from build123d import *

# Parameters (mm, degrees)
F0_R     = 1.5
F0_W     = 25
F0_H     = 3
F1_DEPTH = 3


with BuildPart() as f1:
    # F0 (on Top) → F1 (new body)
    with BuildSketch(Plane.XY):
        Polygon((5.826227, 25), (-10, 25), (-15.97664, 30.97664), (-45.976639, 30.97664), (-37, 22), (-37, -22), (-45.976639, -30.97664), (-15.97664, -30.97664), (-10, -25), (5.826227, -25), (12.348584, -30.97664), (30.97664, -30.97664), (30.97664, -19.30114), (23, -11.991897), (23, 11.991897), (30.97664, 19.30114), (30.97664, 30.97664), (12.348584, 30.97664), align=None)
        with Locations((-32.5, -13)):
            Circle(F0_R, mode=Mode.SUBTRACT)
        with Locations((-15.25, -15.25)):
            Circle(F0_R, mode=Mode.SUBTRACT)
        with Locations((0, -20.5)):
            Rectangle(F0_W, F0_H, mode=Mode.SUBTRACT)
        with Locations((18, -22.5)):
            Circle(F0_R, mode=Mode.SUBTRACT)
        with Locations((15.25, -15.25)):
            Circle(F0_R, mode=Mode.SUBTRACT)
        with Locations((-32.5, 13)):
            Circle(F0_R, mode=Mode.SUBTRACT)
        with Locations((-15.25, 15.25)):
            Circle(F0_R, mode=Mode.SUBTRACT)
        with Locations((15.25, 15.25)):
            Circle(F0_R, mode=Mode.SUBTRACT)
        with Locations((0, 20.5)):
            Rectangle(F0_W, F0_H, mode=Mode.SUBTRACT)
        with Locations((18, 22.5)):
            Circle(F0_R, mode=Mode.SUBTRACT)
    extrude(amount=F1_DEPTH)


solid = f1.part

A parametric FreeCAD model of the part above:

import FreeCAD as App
import Part
import Sketcher
from FreeCAD import Vector
Q = App.Units.Quantity

doc = App.newDocument("Part")
params = doc.addObject("Spreadsheet::Sheet", "Params")
for row, (alias, value) in enumerate([
    ("sketch1_diameter", "3 mm"),
    ("sketch1_width", "29.999999 mm"),
    ("sketch1_width2", "25 mm"),
    ("sketch1_height", "44 mm"),
    ("sketch1_height2", "3 mm"),
    ("pad1_length", "3 mm"),
], start=1):
    params.set(f"A{row}", alias)
    params.set(f"B{row}", "=" + value)
    params.setAlias(f"B{row}", alias)

body = doc.addObject("PartDesign::Body", "Body")

sketch1 = doc.addObject("Sketcher::SketchObject", "Sketch")
body.addObject(sketch1)
sketch1.AttachmentSupport = (doc.XY_Plane, [""])
sketch1.MapMode = "FlatFace"
sketch1.addGeometry(Part.LineSegment(Vector(5.8, 25, 0), Vector(-10, 25, 0)), False)
sketch1.addGeometry(Part.LineSegment(Vector(-10, 25, 0), Vector(-16, 31, 0)), False)
sketch1.addGeometry(Part.LineSegment(Vector(-16, 31, 0), Vector(-46, 31, 0)), False)
sketch1.addGeometry(Part.LineSegment(Vector(-46, 31, 0), Vector(-37, 22, 0)), False)
sketch1.addGeometry(Part.LineSegment(Vector(-37, 22, 0), Vector(-37, -22, 0)), False)
sketch1.addGeometry(Part.LineSegment(Vector(-37, -22, 0), Vector(-46, -31, 0)), False)
sketch1.addGeometry(Part.LineSegment(Vector(-46, -31, 0), Vector(-16, -31, 0)), False)
sketch1.addGeometry(Part.LineSegment(Vector(-16, -31, 0), Vector(-10, -25, 0)), False)
sketch1.addGeometry(Part.LineSegment(Vector(-10, -25, 0), Vector(5.8, -25, 0)), False)
sketch1.addGeometry(Part.LineSegment(Vector(5.8, -25, 0), Vector(12.3, -31, 0)), False)
sketch1.addGeometry(Part.LineSegment(Vector(12.3, -31, 0), Vector(31, -31, 0)), False)
sketch1.addGeometry(Part.LineSegment(Vector(31, -31, 0), Vector(31, -19.3, 0)), False)
sketch1.addGeometry(Part.LineSegment(Vector(31, -19.3, 0), Vector(23, -12, 0)), False)
sketch1.addGeometry(Part.LineSegment(Vector(23, -12, 0), Vector(23, 12, 0)), False)
sketch1.addGeometry(Part.LineSegment(Vector(23, 12, 0), Vector(31, 19.3, 0)), False)
sketch1.addGeometry(Part.LineSegment(Vector(31, 19.3, 0), Vector(31, 31, 0)), False)
sketch1.addGeometry(Part.LineSegment(Vector(31, 31, 0), Vector(12.3, 31, 0)), False)
sketch1.addGeometry(Part.LineSegment(Vector(12.3, 31, 0), Vector(5.8, 25, 0)), False)
sketch1.addGeometry(Part.Circle(Vector(-32.5, -13, 0), Vector(0, 0, 1), 1.5), False)
sketch1.addGeometry(Part.Circle(Vector(-15.2, -15.2, 0), Vector(0, 0, 1), 1.5), False)
sketch1.addGeometry(Part.LineSegment(Vector(12.5, -22, 0), Vector(-12.5, -22, 0)), False)
sketch1.addGeometry(Part.LineSegment(Vector(-12.5, -22, 0), Vector(-12.5, -19, 0)), False)
sketch1.addGeometry(Part.LineSegment(Vector(-12.5, -19, 0), Vector(12.5, -19, 0)), False)
sketch1.addGeometry(Part.LineSegment(Vector(12.5, -19, 0), Vector(12.5, -22, 0)), False)
sketch1.addGeometry(Part.Circle(Vector(18, -22.5, 0), Vector(0, 0, 1), 1.5), False)
sketch1.addGeometry(Part.Circle(Vector(15.2, -15.2, 0), Vector(0, 0, 1), 1.5), False)
sketch1.addGeometry(Part.Circle(Vector(-32.5, 13, 0), Vector(0, 0, 1), 1.5), False)
sketch1.addGeometry(Part.Circle(Vector(-15.2, 15.2, 0), Vector(0, 0, 1), 1.5), False)
sketch1.addGeometry(Part.LineSegment(Vector(12.5, 19, 0), Vector(-12.5, 19, 0)), False)
sketch1.addGeometry(Part.LineSegment(Vector(-12.5, 19, 0), Vector(-12.5, 22, 0)), False)
sketch1.addGeometry(Part.LineSegment(Vector(-12.5, 22, 0), Vector(12.5, 22, 0)), False)
sketch1.addGeometry(Part.LineSegment(Vector(12.5, 22, 0), Vector(12.5, 19, 0)), False)
sketch1.addGeometry(Part.Circle(Vector(15.2, 15.2, 0), Vector(0, 0, 1), 1.5), False)
sketch1.addGeometry(Part.Circle(Vector(18, 22.5, 0), Vector(0, 0, 1), 1.5), False)
sketch1.addConstraint(Sketcher.Constraint("Coincident", 0, 2, 1, 1))
sketch1.addConstraint(Sketcher.Constraint("Coincident", 1, 2, 2, 1))
sketch1.addConstraint(Sketcher.Constraint("Coincident", 2, 2, 3, 1))
sketch1.addConstraint(Sketcher.Constraint("Coincident", 3, 2, 4, 1))
sketch1.addConstraint(Sketcher.Constraint("Coincident", 4, 2, 5, 1))
sketch1.addConstraint(Sketcher.Constraint("Coincident", 5, 2, 6, 1))
sketch1.addConstraint(Sketcher.Constraint("Coincident", 6, 2, 7, 1))
sketch1.addConstraint(Sketcher.Constraint("Coincident", 7, 2, 8, 1))
sketch1.addConstraint(Sketcher.Constraint("Coincident", 8, 2, 9, 1))
sketch1.addConstraint(Sketcher.Constraint("Coincident", 9, 2, 10, 1))
sketch1.addConstraint(Sketcher.Constraint("Coincident", 10, 2, 11, 1))
sketch1.addConstraint(Sketcher.Constraint("Coincident", 11, 2, 12, 1))
sketch1.addConstraint(Sketcher.Constraint("Coincident", 12, 2, 13, 1))
sketch1.addConstraint(Sketcher.Constraint("Coincident", 13, 2, 14, 1))
sketch1.addConstraint(Sketcher.Constraint("Coincident", 14, 2, 15, 1))
sketch1.addConstraint(Sketcher.Constraint("Coincident", 15, 2, 16, 1))
sketch1.addConstraint(Sketcher.Constraint("Coincident", 16, 2, 17, 1))
sketch1.addConstraint(Sketcher.Constraint("Coincident", 17, 2, 0, 1))
sketch1.addConstraint(Sketcher.Constraint("Coincident", 20, 2, 21, 1))
sketch1.addConstraint(Sketcher.Constraint("Coincident", 21, 2, 22, 1))
sketch1.addConstraint(Sketcher.Constraint("Coincident", 22, 2, 23, 1))
sketch1.addConstraint(Sketcher.Constraint("Coincident", 23, 2, 20, 1))
sketch1.addConstraint(Sketcher.Constraint("Coincident", 28, 2, 29, 1))
sketch1.addConstraint(Sketcher.Constraint("Coincident", 29, 2, 30, 1))
sketch1.addConstraint(Sketcher.Constraint("Coincident", 30, 2, 31, 1))
sketch1.addConstraint(Sketcher.Constraint("Coincident", 31, 2, 28, 1))
sketch1.addConstraint(Sketcher.Constraint("Horizontal", 0))
sketch1.addConstraint(Sketcher.Constraint("Horizontal", 2))
sketch1.addConstraint(Sketcher.Constraint("Vertical", 4))
sketch1.addConstraint(Sketcher.Constraint("Horizontal", 6))
sketch1.addConstraint(Sketcher.Constraint("Horizontal", 8))
sketch1.addConstraint(Sketcher.Constraint("Horizontal", 10))
sketch1.addConstraint(Sketcher.Constraint("Vertical", 11))
sketch1.addConstraint(Sketcher.Constraint("Vertical", 13))
sketch1.addConstraint(Sketcher.Constraint("Vertical", 15))
sketch1.addConstraint(Sketcher.Constraint("Horizontal", 16))
sketch1.addConstraint(Sketcher.Constraint("Horizontal", 20))
sketch1.addConstraint(Sketcher.Constraint("Vertical", 21))
sketch1.addConstraint(Sketcher.Constraint("Horizontal", 22))
sketch1.addConstraint(Sketcher.Constraint("Vertical", 23))
sketch1.addConstraint(Sketcher.Constraint("Horizontal", 28))
sketch1.addConstraint(Sketcher.Constraint("Vertical", 29))
sketch1.addConstraint(Sketcher.Constraint("Horizontal", 30))
sketch1.addConstraint(Sketcher.Constraint("Vertical", 31))
sketch1.addConstraint(Sketcher.Constraint("Equal", 18, 19))
sketch1.addConstraint(Sketcher.Constraint("Equal", 19, 24))
sketch1.addConstraint(Sketcher.Constraint("Equal", 24, 25))
sketch1.addConstraint(Sketcher.Constraint("Equal", 25, 26))
sketch1.addConstraint(Sketcher.Constraint("Equal", 26, 27))
sketch1.addConstraint(Sketcher.Constraint("Equal", 27, 32))
sketch1.addConstraint(Sketcher.Constraint("Equal", 32, 33))
sketch1.addConstraint(Sketcher.Constraint("Symmetric", 25, 3, 27, 3, -1, 1))
sketch1.addConstraint(Sketcher.Constraint("Symmetric", 19, 3, 32, 3, -1, 1))
sketch1.addConstraint(Sketcher.Constraint("Symmetric", 22, 2, 28, 2, -1, 1))
sketch1.addConstraint(Sketcher.Constraint("Symmetric", 20, 2, 30, 2, -1, 1))
sketch1.addConstraint(Sketcher.Constraint("Symmetric", 19, 3, 25, 3, -2))
sketch1.addConstraint(Sketcher.Constraint("Symmetric", 18, 3, 26, 3, -1))
sketch1.addConstraint(Sketcher.Constraint("Symmetric", 24, 3, 33, 3, -1))
sketch1.addConstraint(Sketcher.Constraint("Symmetric", 2, 2, 5, 2, -1))
sketch1.addConstraint(Sketcher.Constraint("Symmetric", 0, 2, 7, 2, -1))
sketch1.addConstraint(Sketcher.Constraint("Symmetric", 11, 2, 14, 2, -1))
sketch1.addConstraint(Sketcher.Constraint("Symmetric", 9, 2, 16, 2, -1))
sketch1.addConstraint(Sketcher.Constraint("Parallel", 1, 3))
sketch1.addConstraint(Sketcher.Constraint("Perpendicular", 3, 5))
sketch1.addConstraint(Sketcher.Constraint("Parallel", 5, 7))
sketch1.addConstraint(Sketcher.Constraint("Parallel", 9, 12))
sketch1.addConstraint(Sketcher.Constraint("Parallel", 14, 17))
sketch1.addConstraint(Sketcher.Constraint("Horizontal", 6, 2, 9, 2))
sketch1.addConstraint(Sketcher.Constraint("Horizontal", 4, 2, 20, 2))
sketch1.addConstraint(Sketcher.Constraint("Horizontal", 3, 2, 29, 2))
sketch1.addConstraint(Sketcher.Constraint("Vertical", 8, 2, 17, 2))
sketch1.addConstraint(Sketcher.Constraint("Vertical", 21, 2, 28, 2))
sketch1.addConstraint(Sketcher.Constraint("Diameter", 18, Q("3 mm")))
sketch1.addConstraint(Sketcher.Constraint("DistanceX", 2, 2, 2, 1, Q("29.999999 mm")))
sketch1.addConstraint(Sketcher.Constraint("DistanceX", 20, 2, 20, 1, Q("25 mm")))
sketch1.addConstraint(Sketcher.Constraint("DistanceY", 4, 2, 4, 1, Q("44 mm")))
sketch1.addConstraint(Sketcher.Constraint("DistanceY", 21, 1, 21, 2, Q("3 mm")))
sketch1.addConstraint(Sketcher.Constraint("DistanceY", 18, 3, -1, 1, Q("13 mm")))
sketch1.addConstraint(Sketcher.Constraint("DistanceX", -1, 1, 24, 3, Q("18 mm")))
sketch1.addConstraint(Sketcher.Constraint("DistanceX", 0, 2, -1, 1, Q("10 mm")))
sketch1.addConstraint(Sketcher.Constraint("DistanceY", -1, 1, 0, 2, Q("25 mm")))
sketch1.addConstraint(Sketcher.Constraint("DistanceX", -1, 1, 12, 2, Q("23 mm")))
sketch1.addConstraint(Sketcher.Constraint("Angle", 9, Q("-42.500005 deg")))
sketch1.addConstraint(Sketcher.Constraint("DistanceY", 24, 3, 33, 3, Q("45 mm")))
sketch1.addConstraint(Sketcher.Constraint("DistanceX", 18, 3, 20, 2, Q("20 mm")))
sketch1.addConstraint(Sketcher.Constraint("DistanceX", 19, 3, 25, 3, Q("30.5 mm")))
sketch1.addConstraint(Sketcher.Constraint("DistanceY", 19, 3, 27, 3, Q("30.5 mm")))
sketch1.addConstraint(Sketcher.Constraint("DistanceY", 11, 1, 11, 2, Q("11.6755 mm")))
sketch1.addConstraint(Sketcher.Constraint("Distance", 12, Q("10.819049 mm")))
sketch1.addConstraint(Sketcher.Constraint("DistanceX", 0, 2, 0, 1, Q("15.826227 mm")))
sketch1.addConstraint(Sketcher.Constraint("DistanceX", 10, 1, 10, 2, Q("18.628056 mm")))
sketch1.setExpression("Constraints[72]", "Params.sketch1_diameter")
sketch1.setExpression("Constraints[73]", "Params.sketch1_width")
sketch1.setExpression("Constraints[74]", "Params.sketch1_width2")
sketch1.setExpression("Constraints[75]", "Params.sketch1_height")
sketch1.setExpression("Constraints[76]", "Params.sketch1_height2")
pad1 = doc.addObject("PartDesign::Pad", "Pad")
body.addObject(pad1)
pad1.Profile = sketch1
pad1.setExpression("Length", "Params.pad1_length")

doc.recompute()
